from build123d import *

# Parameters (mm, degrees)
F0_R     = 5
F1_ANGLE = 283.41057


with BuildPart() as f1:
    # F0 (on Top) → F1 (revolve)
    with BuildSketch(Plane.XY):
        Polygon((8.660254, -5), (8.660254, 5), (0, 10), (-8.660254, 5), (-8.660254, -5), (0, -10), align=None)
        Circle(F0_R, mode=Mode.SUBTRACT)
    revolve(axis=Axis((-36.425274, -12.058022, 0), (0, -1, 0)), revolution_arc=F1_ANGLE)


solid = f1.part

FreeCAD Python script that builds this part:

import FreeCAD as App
import Part
import Sketcher

V = App.Vector
Q = App.Units.Quantity

doc = App.newDocument("Part")
body = doc.addObject("PartDesign::Body", "Body")

# Sketch on XY plane
sketch1 = doc.addObject("Sketcher::SketchObject", "Sketch")
body.addObject(sketch1)
sketch1.AttachmentSupport = (doc.XY_Plane, [""])
sketch1.MapMode = "FlatFace"
sketch1.addGeometry(Part.LineSegment(V(9, -5, 0), V(9, 5, 0)), False)
sketch1.addGeometry(Part.LineSegment(V(9, 5, 0), V(0, 10, 0)), False)
sketch1.addGeometry(Part.LineSegment(V(0, 10, 0), V(-9, 5, 0)), False)
sketch1.addGeometry(Part.LineSegment(V(-9, 5, 0), V(-9, -5, 0)), False)
sketch1.addGeometry(Part.LineSegment(V(-9, -5, 0), V(0, -10, 0)), False)
sketch1.addGeometry(Part.LineSegment(V(0, -10, 0), V(9, -5, 0)), False)
sketch1.addGeometry(Part.Circle(V(0, 0, 0), V(0, 0, 1), 5), False)
sketch1.addGeometry(Part.LineSegment(V(-36, 10, 0), V(-36, -10, 0)), True)  # axis
sketch1.addConstraint(Sketcher.Constraint("Coincident", 0, 2, 1, 1))
sketch1.addConstraint(Sketcher.Constraint("Coincident", 1, 2, 2, 1))
sketch1.addConstraint(Sketcher.Constraint("Coincident", 2, 2, 3, 1))
sketch1.addConstraint(Sketcher.Constraint("Coincident", 3, 2, 4, 1))
sketch1.addConstraint(Sketcher.Constraint("Coincident", 4, 2, 5, 1))
sketch1.addConstraint(Sketcher.Constraint("Coincident", 5, 2, 0, 1))
sketch1.addConstraint(Sketcher.Constraint("Vertical", 0))
sketch1.addConstraint(Sketcher.Constraint("Vertical", 3))
sketch1.addConstraint(Sketcher.Constraint("Vertical", 7))
sketch1.addConstraint(Sketcher.Constraint("Coincident", 6, 3, -1, 1))
sketch1.addConstraint(Sketcher.Constraint("Symmetric", 0, 2, 3, 2, -1, 1))
sketch1.addConstraint(Sketcher.Constraint("Symmetric", 1, 2, 4, 2, -1, 1))
sketch1.addConstraint(Sketcher.Constraint("PointOnObject", 1, 2, -2))
sketch1.addConstraint(Sketcher.Constraint("Parallel", 2, 5))
sketch1.addConstraint(Sketcher.Constraint("Horizontal", 0, 2, 2, 2))
sketch1.addConstraint(Sketcher.Constraint("Horizontal", 1, 2, 7, 1))
sketch1.addConstraint(Sketcher.Constraint("Horizontal", 4, 2, 7, 2))
sketch1.addConstraint(Sketcher.Constraint("Diameter", 6, 10.0))
sketch1.addConstraint(Sketcher.Constraint("DistanceY", 0, 1, 0, 2, 10.0))
sketch1.addConstraint(Sketcher.Constraint("DistanceY", 7, 2, 7, 1, 20.0))
sketch1.addConstraint(Sketcher.Constraint("Angle", 1, Q("150 deg")))
sketch1.addConstraint(Sketcher.Constraint("DistanceX", 7, 1, 2, 2, 27.76502))
revolution = doc.addObject("PartDesign::Revolution", "Revolution")
body.addObject(revolution)
revolution.Profile = sketch1
revolution.ReferenceAxis = (sketch1, ["Axis0"])
revolution.Angle = 283.41057

doc.recompute()
